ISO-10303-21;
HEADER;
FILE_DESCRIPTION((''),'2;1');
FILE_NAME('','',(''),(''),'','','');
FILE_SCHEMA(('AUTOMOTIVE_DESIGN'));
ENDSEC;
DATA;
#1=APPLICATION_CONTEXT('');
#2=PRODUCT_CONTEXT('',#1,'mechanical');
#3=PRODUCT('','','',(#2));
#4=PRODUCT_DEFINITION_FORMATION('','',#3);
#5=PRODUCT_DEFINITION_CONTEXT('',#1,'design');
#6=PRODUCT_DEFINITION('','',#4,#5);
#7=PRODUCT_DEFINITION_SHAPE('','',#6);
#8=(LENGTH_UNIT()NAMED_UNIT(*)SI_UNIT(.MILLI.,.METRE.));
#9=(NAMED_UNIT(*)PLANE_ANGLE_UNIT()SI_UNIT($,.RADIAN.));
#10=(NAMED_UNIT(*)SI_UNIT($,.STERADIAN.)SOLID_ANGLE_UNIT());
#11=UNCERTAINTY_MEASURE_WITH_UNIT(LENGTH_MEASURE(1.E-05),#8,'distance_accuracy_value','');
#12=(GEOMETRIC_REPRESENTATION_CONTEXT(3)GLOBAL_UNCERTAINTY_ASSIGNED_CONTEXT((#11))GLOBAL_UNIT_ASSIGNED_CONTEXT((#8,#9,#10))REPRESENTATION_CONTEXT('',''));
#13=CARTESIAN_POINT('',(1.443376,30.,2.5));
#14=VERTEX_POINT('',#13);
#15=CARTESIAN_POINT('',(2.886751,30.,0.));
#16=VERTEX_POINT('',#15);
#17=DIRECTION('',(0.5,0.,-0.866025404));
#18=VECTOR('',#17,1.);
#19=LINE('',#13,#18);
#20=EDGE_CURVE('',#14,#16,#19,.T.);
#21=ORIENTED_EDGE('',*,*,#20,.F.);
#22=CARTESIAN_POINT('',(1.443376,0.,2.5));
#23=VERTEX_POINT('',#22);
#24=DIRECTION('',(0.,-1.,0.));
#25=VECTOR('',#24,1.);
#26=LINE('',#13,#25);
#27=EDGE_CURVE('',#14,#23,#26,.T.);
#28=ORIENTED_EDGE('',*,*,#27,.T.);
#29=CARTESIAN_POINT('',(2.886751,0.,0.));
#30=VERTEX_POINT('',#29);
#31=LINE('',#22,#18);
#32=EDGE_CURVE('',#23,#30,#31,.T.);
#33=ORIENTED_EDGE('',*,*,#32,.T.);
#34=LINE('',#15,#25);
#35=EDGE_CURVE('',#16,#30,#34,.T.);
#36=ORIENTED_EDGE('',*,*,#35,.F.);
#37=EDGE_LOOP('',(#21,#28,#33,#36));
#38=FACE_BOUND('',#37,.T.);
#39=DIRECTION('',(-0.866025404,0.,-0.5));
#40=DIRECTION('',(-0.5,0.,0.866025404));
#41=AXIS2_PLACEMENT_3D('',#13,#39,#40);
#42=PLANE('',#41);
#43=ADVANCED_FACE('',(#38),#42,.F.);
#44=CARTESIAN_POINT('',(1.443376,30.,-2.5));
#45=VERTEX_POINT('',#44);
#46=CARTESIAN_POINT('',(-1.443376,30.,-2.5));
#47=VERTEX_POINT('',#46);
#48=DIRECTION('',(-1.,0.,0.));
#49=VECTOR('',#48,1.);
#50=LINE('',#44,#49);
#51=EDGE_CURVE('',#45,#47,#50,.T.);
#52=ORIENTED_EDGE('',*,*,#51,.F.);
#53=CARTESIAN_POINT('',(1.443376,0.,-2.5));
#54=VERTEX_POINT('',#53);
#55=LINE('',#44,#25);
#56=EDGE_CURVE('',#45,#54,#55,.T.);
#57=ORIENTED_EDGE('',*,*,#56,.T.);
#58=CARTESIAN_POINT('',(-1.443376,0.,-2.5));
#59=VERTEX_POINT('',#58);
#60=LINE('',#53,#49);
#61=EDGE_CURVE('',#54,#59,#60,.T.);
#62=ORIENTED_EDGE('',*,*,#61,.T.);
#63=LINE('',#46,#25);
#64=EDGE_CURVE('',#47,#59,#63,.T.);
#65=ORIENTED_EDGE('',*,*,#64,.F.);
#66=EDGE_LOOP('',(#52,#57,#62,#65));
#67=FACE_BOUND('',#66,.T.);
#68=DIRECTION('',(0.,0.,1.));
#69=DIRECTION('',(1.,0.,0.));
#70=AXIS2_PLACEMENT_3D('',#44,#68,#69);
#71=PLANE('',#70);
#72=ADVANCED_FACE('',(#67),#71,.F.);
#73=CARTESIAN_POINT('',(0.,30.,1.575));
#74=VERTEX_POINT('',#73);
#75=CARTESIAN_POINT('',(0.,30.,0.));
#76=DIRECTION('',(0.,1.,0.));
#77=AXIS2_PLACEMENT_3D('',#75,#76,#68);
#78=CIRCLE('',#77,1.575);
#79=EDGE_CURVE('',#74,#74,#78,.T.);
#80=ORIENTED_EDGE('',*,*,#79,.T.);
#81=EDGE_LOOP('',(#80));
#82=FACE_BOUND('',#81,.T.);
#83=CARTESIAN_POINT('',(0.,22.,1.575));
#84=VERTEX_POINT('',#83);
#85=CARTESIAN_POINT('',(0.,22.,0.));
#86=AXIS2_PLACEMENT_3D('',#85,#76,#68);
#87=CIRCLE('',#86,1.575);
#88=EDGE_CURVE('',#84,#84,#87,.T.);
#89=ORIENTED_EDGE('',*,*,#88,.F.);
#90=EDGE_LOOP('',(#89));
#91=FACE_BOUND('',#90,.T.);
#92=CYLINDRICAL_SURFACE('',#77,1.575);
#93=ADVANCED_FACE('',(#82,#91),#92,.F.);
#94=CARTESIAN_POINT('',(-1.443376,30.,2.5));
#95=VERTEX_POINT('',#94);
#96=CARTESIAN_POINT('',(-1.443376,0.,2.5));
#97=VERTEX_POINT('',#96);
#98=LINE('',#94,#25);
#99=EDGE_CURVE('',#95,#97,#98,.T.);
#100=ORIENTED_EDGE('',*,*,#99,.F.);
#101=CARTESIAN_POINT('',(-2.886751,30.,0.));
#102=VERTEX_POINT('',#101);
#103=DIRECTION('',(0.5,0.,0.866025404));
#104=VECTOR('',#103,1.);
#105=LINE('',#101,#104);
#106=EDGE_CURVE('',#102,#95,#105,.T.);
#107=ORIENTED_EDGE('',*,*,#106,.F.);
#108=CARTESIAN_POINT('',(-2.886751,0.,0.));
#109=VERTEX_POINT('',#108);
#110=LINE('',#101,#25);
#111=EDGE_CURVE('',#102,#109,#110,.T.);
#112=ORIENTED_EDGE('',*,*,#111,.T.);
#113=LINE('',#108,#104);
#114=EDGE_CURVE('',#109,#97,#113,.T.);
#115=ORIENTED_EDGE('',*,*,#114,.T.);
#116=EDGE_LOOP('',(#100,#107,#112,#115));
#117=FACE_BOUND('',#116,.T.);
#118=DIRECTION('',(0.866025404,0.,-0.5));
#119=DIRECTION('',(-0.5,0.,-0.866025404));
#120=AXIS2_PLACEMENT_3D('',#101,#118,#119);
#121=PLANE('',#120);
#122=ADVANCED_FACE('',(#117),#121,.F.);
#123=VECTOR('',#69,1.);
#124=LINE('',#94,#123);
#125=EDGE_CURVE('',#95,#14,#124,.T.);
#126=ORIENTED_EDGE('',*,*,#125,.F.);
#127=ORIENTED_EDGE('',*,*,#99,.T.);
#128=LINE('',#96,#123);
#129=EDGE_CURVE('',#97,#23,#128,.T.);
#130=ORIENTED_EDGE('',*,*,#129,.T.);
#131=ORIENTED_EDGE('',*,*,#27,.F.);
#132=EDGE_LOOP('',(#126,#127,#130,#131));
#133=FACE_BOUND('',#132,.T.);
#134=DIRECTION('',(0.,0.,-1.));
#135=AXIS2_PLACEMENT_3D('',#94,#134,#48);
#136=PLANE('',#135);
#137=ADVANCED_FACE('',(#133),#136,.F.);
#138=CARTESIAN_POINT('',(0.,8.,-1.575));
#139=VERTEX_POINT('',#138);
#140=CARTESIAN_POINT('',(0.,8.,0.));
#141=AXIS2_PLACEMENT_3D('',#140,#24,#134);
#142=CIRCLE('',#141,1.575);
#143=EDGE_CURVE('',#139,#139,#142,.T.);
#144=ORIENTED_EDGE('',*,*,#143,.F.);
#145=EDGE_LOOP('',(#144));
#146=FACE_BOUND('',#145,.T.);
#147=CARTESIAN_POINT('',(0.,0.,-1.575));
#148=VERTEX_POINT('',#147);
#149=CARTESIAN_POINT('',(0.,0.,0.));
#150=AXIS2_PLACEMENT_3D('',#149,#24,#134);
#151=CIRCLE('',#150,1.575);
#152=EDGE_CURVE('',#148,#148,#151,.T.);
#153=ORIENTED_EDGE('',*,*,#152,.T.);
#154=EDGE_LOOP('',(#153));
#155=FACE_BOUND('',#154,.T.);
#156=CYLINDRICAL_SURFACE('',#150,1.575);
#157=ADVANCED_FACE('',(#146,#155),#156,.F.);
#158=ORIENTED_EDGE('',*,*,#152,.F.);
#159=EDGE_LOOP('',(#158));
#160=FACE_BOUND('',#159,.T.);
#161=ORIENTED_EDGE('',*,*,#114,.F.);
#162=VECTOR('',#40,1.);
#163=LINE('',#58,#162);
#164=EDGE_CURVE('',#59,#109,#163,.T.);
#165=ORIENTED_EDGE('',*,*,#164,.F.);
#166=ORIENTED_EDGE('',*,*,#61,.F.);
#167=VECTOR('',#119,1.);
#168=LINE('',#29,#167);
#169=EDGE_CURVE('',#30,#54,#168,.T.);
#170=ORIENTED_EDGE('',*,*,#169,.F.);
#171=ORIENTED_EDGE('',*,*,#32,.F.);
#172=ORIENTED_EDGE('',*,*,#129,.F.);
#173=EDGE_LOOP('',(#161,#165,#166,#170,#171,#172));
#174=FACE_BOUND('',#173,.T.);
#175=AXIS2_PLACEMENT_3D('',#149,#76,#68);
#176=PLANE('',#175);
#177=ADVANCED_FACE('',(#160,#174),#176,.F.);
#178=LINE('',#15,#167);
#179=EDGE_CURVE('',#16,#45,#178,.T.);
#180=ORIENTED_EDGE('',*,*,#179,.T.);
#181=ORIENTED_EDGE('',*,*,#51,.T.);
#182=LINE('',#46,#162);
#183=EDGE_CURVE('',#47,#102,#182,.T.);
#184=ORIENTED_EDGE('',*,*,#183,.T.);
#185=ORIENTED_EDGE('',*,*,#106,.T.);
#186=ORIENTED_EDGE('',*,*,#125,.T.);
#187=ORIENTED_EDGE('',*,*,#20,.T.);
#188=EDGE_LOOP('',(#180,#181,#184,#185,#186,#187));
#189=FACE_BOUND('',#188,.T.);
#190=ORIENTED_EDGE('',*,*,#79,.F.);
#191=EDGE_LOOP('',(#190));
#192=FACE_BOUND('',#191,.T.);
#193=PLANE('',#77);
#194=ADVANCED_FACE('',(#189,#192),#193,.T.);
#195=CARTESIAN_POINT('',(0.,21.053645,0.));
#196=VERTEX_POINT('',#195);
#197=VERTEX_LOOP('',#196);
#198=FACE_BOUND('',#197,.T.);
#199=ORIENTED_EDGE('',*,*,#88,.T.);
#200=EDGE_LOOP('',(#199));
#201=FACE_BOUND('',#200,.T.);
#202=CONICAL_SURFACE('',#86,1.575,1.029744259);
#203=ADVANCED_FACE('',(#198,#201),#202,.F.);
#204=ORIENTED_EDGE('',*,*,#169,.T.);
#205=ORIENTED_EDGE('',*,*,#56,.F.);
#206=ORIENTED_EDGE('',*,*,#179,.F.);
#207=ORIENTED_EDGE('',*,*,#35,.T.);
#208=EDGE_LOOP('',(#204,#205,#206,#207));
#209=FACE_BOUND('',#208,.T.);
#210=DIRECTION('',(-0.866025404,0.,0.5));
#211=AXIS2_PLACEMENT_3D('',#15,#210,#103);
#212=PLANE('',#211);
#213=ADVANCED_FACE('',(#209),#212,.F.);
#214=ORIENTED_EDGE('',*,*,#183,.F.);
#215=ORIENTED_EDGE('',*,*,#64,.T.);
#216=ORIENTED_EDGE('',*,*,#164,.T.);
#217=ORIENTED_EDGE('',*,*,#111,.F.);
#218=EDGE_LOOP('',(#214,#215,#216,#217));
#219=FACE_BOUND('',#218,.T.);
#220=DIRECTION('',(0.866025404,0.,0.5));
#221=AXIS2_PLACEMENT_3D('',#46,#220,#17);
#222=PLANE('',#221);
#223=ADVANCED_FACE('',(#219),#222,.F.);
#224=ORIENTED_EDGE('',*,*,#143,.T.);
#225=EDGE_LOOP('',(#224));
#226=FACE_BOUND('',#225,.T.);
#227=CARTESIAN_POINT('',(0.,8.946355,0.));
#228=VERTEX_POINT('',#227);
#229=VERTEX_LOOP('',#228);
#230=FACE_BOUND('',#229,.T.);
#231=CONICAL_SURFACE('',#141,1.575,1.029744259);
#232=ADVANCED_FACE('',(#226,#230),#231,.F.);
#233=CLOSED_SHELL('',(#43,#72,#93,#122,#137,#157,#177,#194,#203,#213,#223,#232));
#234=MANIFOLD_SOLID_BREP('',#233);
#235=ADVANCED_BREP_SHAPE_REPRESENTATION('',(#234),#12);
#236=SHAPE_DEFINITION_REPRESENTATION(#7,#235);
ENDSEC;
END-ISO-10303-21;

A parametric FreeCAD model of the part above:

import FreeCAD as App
import Part
import Sketcher

V = App.Vector
Q = App.Units.Quantity


def add_polygon(sketch, points):
    """Adds a closed chain of lines whose ends are joined by coincident constraints."""
    first, n = sketch.GeometryCount, len(points)
    for a, b in zip(points, points[1:] + points[:1]):
        sketch.addGeometry(Part.LineSegment(App.Vector(*a, 0), App.Vector(*b, 0)), False)
    for i in range(n):
        sketch.addConstraint(Sketcher.Constraint("Coincident", first + i, 2, first + (i + 1) % n, 1))

doc = App.newDocument("Part")
params = doc.addObject("Spreadsheet::Sheet", "Params")
for row, (alias, value) in enumerate([
    ("pad1_length", "30 mm"),
    ("sketch2_diameter", "3.15 mm"),
    ("hole_diameter", "3.15 mm"),
    ("hole_depth", "8 mm"),
    ("sketch3_diameter", "3.15 mm"),
    ("hole2_diameter", "3.15 mm"),
    ("hole2_depth", "8 mm"),
], start=1):
    params.set(f"A{row}", alias)
    params.set(f"B{row}", "=" + value)
    params.setAlias(f"B{row}", alias)

body = doc.addObject("PartDesign::Body", "Body")

# Sketch on XZ plane
sketch1 = body.newObject("Sketcher::SketchObject", "Sketch")
sketch1.AttachmentSupport = (doc.getObject("XZ_Plane"), [""])
sketch1.MapMode = "FlatFace"
add_polygon(sketch1, [(2.9, 0), (1.4, -2.5), (-1.4, -2.5), (-2.9, 0), (-1.4, 2.5), (1.4, 2.5)])  # lines 0-5
sketch1.addConstraint(Sketcher.Constraint("Horizontal", 1))
sketch1.addConstraint(Sketcher.Constraint("Horizontal", 4))
sketch1.addConstraint(Sketcher.Constraint("Symmetric", 0, 2, 3, 2, -1, 1))
sketch1.addConstraint(Sketcher.Constraint("Symmetric", 2, 2, 5, 2, -1, 1))
sketch1.addConstraint(Sketcher.Constraint("PointOnObject", 2, 2, -1))
sketch1.addConstraint(Sketcher.Constraint("Parallel", 2, 5))
sketch1.addConstraint(Sketcher.Constraint("Vertical", 1, 2, 3, 2))
sketch1.addConstraint(Sketcher.Constraint("Angle", 0, Q("-120 deg")))
sketch1.addConstraint(Sketcher.Constraint("DistanceY", 1, 2, 3, 2, 5.0))
sketch1.addConstraint(Sketcher.Constraint("DistanceX", 1, 2, 1, 1, 2.886751))
pad1 = body.newObject("PartDesign::Pad", "Pad")
pad1.Profile = sketch1
pad1.setExpression("Length", "Params.pad1_length")
pad1.Reversed = True

# Sketch on XZ plane
sketch2 = body.newObject("Sketcher::SketchObject", "Sketch001")
sketch2.AttachmentSupport = (doc.getObject("XZ_Plane"), [""])
sketch2.MapMode = "FlatFace"
sketch2.AttachmentOffset = App.Placement(V(0, 0, -30), App.Rotation())
sketch2.addGeometry(Part.Circle(V(0, 0, 0), V(0, 0, 1), 1.6), False)
sketch2.addConstraint(Sketcher.Constraint("Coincident", 0, 3, -1, 1))
sketch2.addConstraint(Sketcher.Constraint("Diameter", 0, 3.15))
sketch2.setExpression("Constraints[1]", "Params.sketch2_diameter")
doc.recompute()
hole = body.newObject("PartDesign::Hole", "Hole")
hole.Profile = sketch2
hole.ThreadType = "None"
hole.setExpression("Diameter", "Params.hole_diameter")
hole.DepthType = "Dimension"
hole.setExpression("Depth", "Params.hole_depth")
hole.DrillPoint = "Angled"
hole.DrillPointAngle = 118
hole.Reversed = True

# Sketch on XZ plane
sketch3 = body.newObject("Sketcher::SketchObject", "Sketch002")
sketch3.AttachmentSupport = (doc.getObject("XZ_Plane"), [""])
sketch3.MapMode = "FlatFace"
sketch3.addGeometry(Part.Circle(V(0, 0, 0), V(0, 0, 1), 1.6), False)
sketch3.addConstraint(Sketcher.Constraint("Coincident", 0, 3, -1, 1))
sketch3.addConstraint(Sketcher.Constraint("Diameter", 0, 3.15))
sketch3.setExpression("Constraints[1]", "Params.sketch3_diameter")
doc.recompute()
hole2 = body.newObject("PartDesign::Hole", "Hole001")
hole2.Profile = sketch3
hole2.ThreadType = "None"
hole2.setExpression("Diameter", "Params.hole2_diameter")
hole2.DepthType = "Dimension"
hole2.setExpression("Depth", "Params.hole2_depth")
hole2.DrillPoint = "Angled"
hole2.DrillPointAngle = 118

doc.recompute()
